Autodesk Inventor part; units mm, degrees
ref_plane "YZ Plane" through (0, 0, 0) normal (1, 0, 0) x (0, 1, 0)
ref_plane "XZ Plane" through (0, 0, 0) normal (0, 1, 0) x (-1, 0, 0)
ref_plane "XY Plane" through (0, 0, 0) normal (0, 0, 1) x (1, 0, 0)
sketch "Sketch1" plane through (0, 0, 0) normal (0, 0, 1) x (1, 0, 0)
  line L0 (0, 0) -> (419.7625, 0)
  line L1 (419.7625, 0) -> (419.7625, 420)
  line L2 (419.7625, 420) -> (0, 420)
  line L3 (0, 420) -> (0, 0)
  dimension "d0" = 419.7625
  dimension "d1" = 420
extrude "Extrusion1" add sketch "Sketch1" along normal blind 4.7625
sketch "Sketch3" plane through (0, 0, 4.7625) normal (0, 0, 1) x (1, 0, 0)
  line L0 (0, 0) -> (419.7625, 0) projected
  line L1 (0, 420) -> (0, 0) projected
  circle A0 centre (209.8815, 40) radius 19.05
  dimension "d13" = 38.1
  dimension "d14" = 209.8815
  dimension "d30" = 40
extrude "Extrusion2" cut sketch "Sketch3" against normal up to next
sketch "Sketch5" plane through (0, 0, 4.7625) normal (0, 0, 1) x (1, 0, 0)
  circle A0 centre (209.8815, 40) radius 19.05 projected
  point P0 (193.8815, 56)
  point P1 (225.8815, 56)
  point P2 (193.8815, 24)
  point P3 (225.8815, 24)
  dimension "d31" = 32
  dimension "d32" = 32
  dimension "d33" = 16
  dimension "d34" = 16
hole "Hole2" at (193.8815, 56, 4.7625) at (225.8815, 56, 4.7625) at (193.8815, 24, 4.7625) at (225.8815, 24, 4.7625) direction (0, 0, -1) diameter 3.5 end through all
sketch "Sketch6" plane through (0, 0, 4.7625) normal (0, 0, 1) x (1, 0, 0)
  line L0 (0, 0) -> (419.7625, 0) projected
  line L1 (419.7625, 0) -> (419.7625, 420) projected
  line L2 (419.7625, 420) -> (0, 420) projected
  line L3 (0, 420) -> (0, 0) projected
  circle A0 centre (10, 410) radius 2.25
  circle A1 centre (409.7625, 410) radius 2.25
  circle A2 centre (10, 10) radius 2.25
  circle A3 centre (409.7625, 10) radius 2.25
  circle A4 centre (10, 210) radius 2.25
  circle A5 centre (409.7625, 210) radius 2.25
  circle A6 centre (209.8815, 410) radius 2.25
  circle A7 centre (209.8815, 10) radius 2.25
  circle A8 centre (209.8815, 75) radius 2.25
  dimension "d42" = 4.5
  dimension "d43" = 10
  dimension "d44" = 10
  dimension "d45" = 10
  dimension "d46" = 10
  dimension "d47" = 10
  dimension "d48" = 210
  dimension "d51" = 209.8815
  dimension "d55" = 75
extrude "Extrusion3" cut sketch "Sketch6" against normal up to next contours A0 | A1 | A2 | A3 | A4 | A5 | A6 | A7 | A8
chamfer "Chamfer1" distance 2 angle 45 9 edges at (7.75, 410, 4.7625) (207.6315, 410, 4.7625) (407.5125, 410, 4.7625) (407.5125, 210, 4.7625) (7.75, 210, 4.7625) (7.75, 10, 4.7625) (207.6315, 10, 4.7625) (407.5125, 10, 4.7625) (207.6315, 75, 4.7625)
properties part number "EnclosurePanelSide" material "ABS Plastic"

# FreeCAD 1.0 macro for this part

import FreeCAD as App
import Part
import Sketcher


def edges_at(feature, points):
    """Names of the edges that pass closest to the given points."""
    edges = feature.Shape.Edges
    near = lambda p: min(range(len(edges)), key=lambda i: edges[i].distToShape(Part.Vertex(*p))[0])
    return sorted({f"Edge{near(p) + 1}" for p in points})

doc = App.newDocument("Part")
body = doc.addObject("PartDesign::Body", "Body")

# Sketch on XY plane
sketch1 = body.newObject("Sketcher::SketchObject", "Sketch")
sketch1.AttachmentSupport = (doc.getObject("XY_Plane"), [""])
sketch1.MapMode = "FlatFace"
sketch1.addGeometry([
    Part.LineSegment(App.Vector(0, 420, 0), App.Vector(0, 0, 0)),
    Part.LineSegment(App.Vector(0, 0, 0), App.Vector(420, 0, 0)),
    Part.LineSegment(App.Vector(420, 0, 0), App.Vector(420, 420, 0)),
    Part.LineSegment(App.Vector(420, 420, 0), App.Vector(0, 420, 0)),
], False)
sketch1.addConstraint([
    Sketcher.Constraint("Coincident", 0, 2, 1, 1),
    Sketcher.Constraint("Coincident", 1, 2, 2, 1),
    Sketcher.Constraint("Coincident", 2, 2, 3, 1),
    Sketcher.Constraint("Coincident", 3, 2, 0, 1),
    Sketcher.Constraint("Vertical", 0),
    Sketcher.Constraint("Horizontal", 1),
    Sketcher.Constraint("Vertical", 2),
    Sketcher.Constraint("Horizontal", 3),
    Sketcher.Constraint("Coincident", 0, 2, -1, 1),
    Sketcher.Constraint("DistanceY", 0, 2, 0, 1, 420.0),
    Sketcher.Constraint("DistanceX", 1, 1, 1, 2, 419.7625),
])
pad1 = body.newObject("PartDesign::Pad", "Pad")
pad1.Profile = sketch1
pad1.Length = 4.7625

# Sketch on XY plane
sketch2 = body.newObject("Sketcher::SketchObject", "Sketch001")
sketch2.AttachmentSupport = (doc.getObject("XY_Plane"), [""])
sketch2.MapMode = "FlatFace"
sketch2.AttachmentOffset = App.Placement(App.Vector(0, 0, 4.7625), App.Rotation())
sketch2.addGeometry(Part.Circle(App.Vector(210, 40, 0), App.Vector(0, 0, 1), 19), False)
sketch2.addConstraint([
    Sketcher.Constraint("Diameter", 0, 38.1),
    Sketcher.Constraint("DistanceY", -1, 1, 0, 3, 40.0),
    Sketcher.Constraint("DistanceX", -1, 1, 0, 3, 209.8815),
])
pocket1 = body.newObject("PartDesign::Pocket", "Pocket")
pocket1.Profile = sketch2
pocket1.Type = "UpToFirst"

# Sketch on XY plane
sketch3 = body.newObject("Sketcher::SketchObject", "Sketch002")
sketch3.AttachmentSupport = (doc.getObject("XY_Plane"), [""])
sketch3.MapMode = "FlatFace"
sketch3.AttachmentOffset = App.Placement(App.Vector(0, 0, 4.7625), App.Rotation())
sketch3.addGeometry([
    Part.Circle(App.Vector(193.9, 56, 0), App.Vector(0, 0, 1), 1.8),
    Part.Circle(App.Vector(225.9, 56, 0), App.Vector(0, 0, 1), 1.8),
    Part.Circle(App.Vector(193.9, 24, 0), App.Vector(0, 0, 1), 1.8),
    Part.Circle(App.Vector(225.9, 24, 0), App.Vector(0, 0, 1), 1.8),
], False)
sketch3.addConstraint([
    Sketcher.Constraint("Equal", 0, 1),
    Sketcher.Constraint("Equal", 1, 2),
    Sketcher.Constraint("Equal", 2, 3),
    Sketcher.Constraint("Horizontal", 0, 3, 1, 3),
    Sketcher.Constraint("Horizontal", 2, 3, 3, 3),
    Sketcher.Constraint("Vertical", 0, 3, 2, 3),
    Sketcher.Constraint("Vertical", 1, 3, 3, 3),
    Sketcher.Constraint("Diameter", 0, 3.5),
    Sketcher.Constraint("DistanceY", -1, 1, 0, 3, 56.0),
    Sketcher.Constraint("DistanceY", -1, 1, 2, 3, 24.0),
    Sketcher.Constraint("DistanceX", 0, 3, 1, 3, 32.0),
    Sketcher.Constraint("DistanceX", -1, 1, 0, 3, 193.8815),
])
doc.recompute()
hole = body.newObject("PartDesign::Hole", "Hole")
hole.Profile = sketch3
hole.ThreadType = "None"
hole.Diameter = 3.5
hole.DepthType = "ThroughAll"

# Sketch on XY plane
sketch4 = body.newObject("Sketcher::SketchObject", "Sketch003")
sketch4.AttachmentSupport = (doc.getObject("XY_Plane"), [""])
sketch4.MapMode = "FlatFace"
sketch4.AttachmentOffset = App.Placement(App.Vector(0, 0, 4.7625), App.Rotation())
sketch4.addGeometry([
    Part.Circle(App.Vector(10, 410, 0), App.Vector(0, 0, 1), 2.2),  # 0
    Part.Circle(App.Vector(409.8, 410, 0), App.Vector(0, 0, 1), 2.2),  # 1
    Part.Circle(App.Vector(10, 10, 0), App.Vector(0, 0, 1), 2.2),  # 2
    Part.Circle(App.Vector(409.8, 10, 0), App.Vector(0, 0, 1), 2.2),  # 3
    Part.Circle(App.Vector(10, 210, 0), App.Vector(0, 0, 1), 2.2),  # 4
    Part.Circle(App.Vector(409.8, 210, 0), App.Vector(0, 0, 1), 2.2),  # 5
    Part.Circle(App.Vector(209.9, 410, 0), App.Vector(0, 0, 1), 2.2),  # 6
    Part.Circle(App.Vector(209.9, 10, 0), App.Vector(0, 0, 1), 2.2),  # 7
    Part.Circle(App.Vector(209.9, 75, 0), App.Vector(0, 0, 1), 2.2),  # 8
], False)
sketch4.addConstraint([
    Sketcher.Constraint("Equal", 0, 1),
    Sketcher.Constraint("Equal", 1, 2),
    Sketcher.Constraint("Equal", 2, 3),
    Sketcher.Constraint("Equal", 3, 4),
    Sketcher.Constraint("Equal", 4, 5),
    Sketcher.Constraint("Equal", 5, 6),
    Sketcher.Constraint("Equal", 6, 7),
    Sketcher.Constraint("Equal", 7, 8),
    Sketcher.Constraint("Horizontal", 0, 3, 1, 3),
    Sketcher.Constraint("Horizontal", 2, 3, 3, 3),
    Sketcher.Constraint("Horizontal", 4, 3, 5, 3),
    Sketcher.Constraint("Horizontal", 1, 3, 6, 3),
    Sketcher.Constraint("Horizontal", 3, 3, 7, 3),
    Sketcher.Constraint("Vertical", 0, 3, 2, 3),
    Sketcher.Constraint("Vertical", 1, 3, 3, 3),
    Sketcher.Constraint("Vertical", 2, 3, 4, 3),
    Sketcher.Constraint("Vertical", 3, 3, 5, 3),
    Sketcher.Constraint("Vertical", 6, 3, 7, 3),
    Sketcher.Constraint("Vertical", 7, 3, 8, 3),
    Sketcher.Constraint("Diameter", 0, 4.5),
    Sketcher.Constraint("DistanceX", -1, 1, 0, 3, 10.0),
    Sketcher.Constraint("DistanceY", -1, 1, 2, 3, 10.0),
    Sketcher.Constraint("DistanceY", -1, 1, 4, 3, 210.0),
    Sketcher.Constraint("DistanceY", -1, 1, 8, 3, 75.0),
    Sketcher.Constraint("DistanceY", -1, 1, 0, 3, 410.0),
    Sketcher.Constraint("DistanceX", -1, 1, 6, 3, 209.8815),
    Sketcher.Constraint("DistanceX", 6, 3, 1, 3, 199.881),
])
pocket2 = body.newObject("PartDesign::Pocket", "Pocket001")
pocket2.Profile = sketch4
pocket2.Type = "UpToFirst"
doc.recompute()

chamfer = body.newObject("PartDesign::Chamfer", "Chamfer")
chamfer.Base = (pocket2, edges_at(pocket2, [
    (7.75, 410, 4.763),
    (207.631, 410, 4.763),
    (407.512, 410, 4.763),
    (407.512, 210, 4.763),
    (7.75, 210, 4.763),
    (7.75, 10, 4.763),
    (207.631, 10, 4.763),
    (407.512, 10, 4.763),
    (207.631, 75, 4.763),
]))
chamfer.Size = 2

doc.recompute()
